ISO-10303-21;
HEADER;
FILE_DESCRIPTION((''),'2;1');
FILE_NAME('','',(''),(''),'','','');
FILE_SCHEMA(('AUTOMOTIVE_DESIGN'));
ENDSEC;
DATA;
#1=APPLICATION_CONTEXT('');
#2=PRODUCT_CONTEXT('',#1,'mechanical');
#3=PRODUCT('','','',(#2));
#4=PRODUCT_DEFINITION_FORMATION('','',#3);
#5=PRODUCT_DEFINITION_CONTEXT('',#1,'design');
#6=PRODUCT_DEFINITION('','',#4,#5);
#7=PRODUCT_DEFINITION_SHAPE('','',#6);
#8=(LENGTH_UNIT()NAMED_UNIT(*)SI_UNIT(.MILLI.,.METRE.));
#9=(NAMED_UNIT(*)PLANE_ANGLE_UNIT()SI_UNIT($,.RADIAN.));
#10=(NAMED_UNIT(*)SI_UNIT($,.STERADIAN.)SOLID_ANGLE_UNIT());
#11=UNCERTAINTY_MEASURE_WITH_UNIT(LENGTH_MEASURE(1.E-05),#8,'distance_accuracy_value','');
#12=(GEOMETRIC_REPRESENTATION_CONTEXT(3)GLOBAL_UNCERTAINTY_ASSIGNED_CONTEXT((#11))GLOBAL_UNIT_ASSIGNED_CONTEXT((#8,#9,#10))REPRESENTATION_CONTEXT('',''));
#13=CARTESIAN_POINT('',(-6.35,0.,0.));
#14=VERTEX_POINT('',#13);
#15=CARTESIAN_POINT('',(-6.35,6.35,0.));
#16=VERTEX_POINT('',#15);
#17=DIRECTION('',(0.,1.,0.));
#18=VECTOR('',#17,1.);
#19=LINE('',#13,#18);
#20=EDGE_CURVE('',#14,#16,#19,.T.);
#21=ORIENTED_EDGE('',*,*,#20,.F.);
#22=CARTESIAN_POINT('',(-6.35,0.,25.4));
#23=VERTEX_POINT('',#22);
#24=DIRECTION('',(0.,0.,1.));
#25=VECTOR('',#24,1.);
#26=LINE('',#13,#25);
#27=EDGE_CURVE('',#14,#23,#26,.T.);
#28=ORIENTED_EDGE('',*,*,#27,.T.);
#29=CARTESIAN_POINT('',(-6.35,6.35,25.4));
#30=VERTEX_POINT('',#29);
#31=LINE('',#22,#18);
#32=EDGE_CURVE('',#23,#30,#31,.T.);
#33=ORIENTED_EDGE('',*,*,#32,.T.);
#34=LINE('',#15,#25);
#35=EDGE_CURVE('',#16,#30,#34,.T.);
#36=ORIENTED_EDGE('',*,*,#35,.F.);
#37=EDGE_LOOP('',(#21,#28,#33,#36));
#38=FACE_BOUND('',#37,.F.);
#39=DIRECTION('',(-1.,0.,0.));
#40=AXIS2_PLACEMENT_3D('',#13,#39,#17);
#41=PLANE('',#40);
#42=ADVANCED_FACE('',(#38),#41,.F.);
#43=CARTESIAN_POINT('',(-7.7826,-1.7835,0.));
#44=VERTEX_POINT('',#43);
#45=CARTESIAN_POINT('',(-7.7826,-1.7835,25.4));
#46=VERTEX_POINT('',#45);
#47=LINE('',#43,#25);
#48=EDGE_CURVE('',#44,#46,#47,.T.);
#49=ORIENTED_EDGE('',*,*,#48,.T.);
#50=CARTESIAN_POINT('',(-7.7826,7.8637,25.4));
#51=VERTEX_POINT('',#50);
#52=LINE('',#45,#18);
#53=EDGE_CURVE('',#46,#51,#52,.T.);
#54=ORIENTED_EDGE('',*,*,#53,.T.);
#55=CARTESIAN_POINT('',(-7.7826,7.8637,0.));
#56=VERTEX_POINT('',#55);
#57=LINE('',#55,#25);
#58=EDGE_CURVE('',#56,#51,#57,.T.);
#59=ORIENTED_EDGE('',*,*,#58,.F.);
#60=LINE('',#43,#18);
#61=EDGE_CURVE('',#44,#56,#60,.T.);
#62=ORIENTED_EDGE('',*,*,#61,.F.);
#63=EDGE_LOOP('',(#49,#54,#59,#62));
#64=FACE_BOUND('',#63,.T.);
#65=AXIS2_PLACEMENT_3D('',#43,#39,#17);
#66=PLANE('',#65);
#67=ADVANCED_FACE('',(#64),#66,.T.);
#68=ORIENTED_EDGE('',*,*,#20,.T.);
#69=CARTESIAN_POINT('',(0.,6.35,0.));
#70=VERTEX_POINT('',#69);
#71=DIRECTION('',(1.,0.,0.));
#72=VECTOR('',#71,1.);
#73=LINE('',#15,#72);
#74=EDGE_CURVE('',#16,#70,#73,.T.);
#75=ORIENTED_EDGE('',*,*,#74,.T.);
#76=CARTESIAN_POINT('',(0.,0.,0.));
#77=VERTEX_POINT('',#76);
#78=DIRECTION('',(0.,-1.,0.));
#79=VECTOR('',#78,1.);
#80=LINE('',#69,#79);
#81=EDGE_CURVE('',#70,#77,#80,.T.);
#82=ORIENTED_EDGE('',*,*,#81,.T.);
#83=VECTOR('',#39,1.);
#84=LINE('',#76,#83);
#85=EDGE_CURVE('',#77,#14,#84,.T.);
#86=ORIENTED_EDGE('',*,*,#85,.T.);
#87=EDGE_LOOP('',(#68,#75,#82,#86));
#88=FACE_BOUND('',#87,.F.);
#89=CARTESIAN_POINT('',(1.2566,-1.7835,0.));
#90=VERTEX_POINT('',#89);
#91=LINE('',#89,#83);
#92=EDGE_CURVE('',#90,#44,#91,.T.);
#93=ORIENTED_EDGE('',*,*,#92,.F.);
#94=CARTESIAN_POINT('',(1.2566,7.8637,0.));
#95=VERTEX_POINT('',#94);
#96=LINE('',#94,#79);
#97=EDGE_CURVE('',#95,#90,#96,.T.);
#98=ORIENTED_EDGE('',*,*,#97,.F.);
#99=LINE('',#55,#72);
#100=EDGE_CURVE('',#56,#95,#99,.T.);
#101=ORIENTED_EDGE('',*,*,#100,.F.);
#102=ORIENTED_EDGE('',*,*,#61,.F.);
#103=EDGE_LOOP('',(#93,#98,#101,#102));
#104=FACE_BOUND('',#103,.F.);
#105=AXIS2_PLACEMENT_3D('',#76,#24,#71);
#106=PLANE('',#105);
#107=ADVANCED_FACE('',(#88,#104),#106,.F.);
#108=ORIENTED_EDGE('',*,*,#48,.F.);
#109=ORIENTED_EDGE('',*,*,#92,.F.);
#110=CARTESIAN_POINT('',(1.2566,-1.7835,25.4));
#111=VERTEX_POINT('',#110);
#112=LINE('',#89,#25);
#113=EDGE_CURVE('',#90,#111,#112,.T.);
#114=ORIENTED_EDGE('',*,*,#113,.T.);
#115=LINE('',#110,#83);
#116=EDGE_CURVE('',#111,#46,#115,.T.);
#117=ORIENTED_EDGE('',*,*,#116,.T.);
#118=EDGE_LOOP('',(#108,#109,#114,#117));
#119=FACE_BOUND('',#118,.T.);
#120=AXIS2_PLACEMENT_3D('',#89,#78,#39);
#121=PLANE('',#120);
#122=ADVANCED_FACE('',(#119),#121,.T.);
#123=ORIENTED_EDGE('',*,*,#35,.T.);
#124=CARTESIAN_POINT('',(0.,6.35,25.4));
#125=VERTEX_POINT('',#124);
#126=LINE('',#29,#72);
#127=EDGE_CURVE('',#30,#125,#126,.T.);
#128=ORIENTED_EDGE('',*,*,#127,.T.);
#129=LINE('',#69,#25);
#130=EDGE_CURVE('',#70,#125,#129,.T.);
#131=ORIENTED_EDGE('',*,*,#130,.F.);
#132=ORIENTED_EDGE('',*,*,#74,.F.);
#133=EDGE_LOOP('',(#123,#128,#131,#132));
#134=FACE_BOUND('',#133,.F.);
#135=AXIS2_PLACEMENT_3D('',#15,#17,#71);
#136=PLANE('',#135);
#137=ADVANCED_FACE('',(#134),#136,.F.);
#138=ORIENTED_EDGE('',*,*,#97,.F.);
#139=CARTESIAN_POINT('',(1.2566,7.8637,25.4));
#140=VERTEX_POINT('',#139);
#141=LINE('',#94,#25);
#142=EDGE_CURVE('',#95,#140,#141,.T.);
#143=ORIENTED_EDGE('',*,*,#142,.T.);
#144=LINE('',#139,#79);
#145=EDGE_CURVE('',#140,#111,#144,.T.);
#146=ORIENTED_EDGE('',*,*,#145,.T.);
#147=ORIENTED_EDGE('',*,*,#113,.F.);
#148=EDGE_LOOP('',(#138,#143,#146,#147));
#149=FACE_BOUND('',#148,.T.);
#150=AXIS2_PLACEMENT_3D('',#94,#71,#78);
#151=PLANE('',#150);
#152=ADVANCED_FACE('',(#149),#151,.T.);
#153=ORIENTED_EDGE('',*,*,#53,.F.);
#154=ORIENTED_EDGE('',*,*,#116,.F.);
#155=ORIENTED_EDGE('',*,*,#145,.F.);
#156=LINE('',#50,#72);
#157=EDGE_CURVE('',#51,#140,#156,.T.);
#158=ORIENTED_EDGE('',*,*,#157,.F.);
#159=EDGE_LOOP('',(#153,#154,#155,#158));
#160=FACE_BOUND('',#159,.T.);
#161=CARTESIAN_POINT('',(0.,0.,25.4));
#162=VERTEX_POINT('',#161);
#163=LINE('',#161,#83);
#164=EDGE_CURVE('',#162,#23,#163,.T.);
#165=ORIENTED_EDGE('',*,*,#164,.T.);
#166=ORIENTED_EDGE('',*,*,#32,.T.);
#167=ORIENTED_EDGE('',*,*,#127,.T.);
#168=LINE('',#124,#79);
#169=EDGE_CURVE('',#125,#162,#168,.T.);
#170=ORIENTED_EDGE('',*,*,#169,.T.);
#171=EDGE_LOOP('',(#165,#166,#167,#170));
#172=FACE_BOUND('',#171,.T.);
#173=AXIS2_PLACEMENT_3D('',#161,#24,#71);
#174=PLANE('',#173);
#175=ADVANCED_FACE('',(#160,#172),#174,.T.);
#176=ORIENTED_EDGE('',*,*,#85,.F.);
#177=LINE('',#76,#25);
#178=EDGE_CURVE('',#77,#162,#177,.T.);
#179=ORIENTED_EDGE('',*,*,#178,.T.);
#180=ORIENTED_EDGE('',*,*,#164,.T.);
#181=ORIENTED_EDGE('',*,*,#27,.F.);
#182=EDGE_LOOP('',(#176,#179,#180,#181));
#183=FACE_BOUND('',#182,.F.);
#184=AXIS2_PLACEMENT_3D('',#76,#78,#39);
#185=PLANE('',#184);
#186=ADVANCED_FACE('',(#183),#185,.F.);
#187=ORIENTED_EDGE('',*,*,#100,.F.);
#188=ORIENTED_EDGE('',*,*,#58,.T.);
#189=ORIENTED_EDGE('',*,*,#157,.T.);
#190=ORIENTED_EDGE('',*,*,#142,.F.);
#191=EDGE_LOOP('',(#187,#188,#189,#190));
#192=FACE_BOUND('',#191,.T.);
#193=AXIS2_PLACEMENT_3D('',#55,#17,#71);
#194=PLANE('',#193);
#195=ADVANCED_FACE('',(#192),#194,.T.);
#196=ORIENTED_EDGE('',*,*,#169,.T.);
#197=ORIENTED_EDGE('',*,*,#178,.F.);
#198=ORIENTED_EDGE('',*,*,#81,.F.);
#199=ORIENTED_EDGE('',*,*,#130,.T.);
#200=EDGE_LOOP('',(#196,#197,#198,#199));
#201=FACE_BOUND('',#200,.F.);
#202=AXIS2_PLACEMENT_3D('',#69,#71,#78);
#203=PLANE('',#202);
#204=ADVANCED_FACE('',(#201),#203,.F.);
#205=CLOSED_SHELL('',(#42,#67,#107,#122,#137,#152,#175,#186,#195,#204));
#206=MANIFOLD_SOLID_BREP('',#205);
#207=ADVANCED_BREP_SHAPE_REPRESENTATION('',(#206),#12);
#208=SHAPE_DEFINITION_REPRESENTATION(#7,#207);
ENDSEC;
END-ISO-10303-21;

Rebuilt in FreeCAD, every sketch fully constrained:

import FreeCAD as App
import Part
import Sketcher
Q = App.Units.Quantity


def add_polygon(sketch, points):
    """Adds a closed chain of lines whose ends are joined by coincident constraints."""
    first, n = sketch.GeometryCount, len(points)
    for a, b in zip(points, points[1:] + points[:1]):
        sketch.addGeometry(Part.LineSegment(App.Vector(*a, 0), App.Vector(*b, 0)), False)
    for i in range(n):
        sketch.addConstraint(Sketcher.Constraint("Coincident", first + i, 2, first + (i + 1) % n, 1))

doc = App.newDocument("Part")
params = doc.addObject("Spreadsheet::Sheet", "Params")
for row, (alias, value) in enumerate([
    ("sketch1_width", "0.25 in"),
    ("pad1_length", "1 in"),
], start=1):
    params.set(f"A{row}", alias)
    params.set(f"B{row}", "=" + value)
    params.setAlias(f"B{row}", alias)

body = doc.addObject("PartDesign::Body", "Body")

sketch1 = doc.addObject("Sketcher::SketchObject", "Sketch")
body.addObject(sketch1)
sketch1.AttachmentSupport = (doc.XY_Plane, [""])
sketch1.MapMode = "FlatFace"
add_polygon(sketch1, [(1.2566, 7.8637), (-7.7826, 7.8637), (-7.7826, -1.7835), (1.2566, -1.7835)])
add_polygon(sketch1, [(0, 6.35), (0, 0), (-6.35, 0), (-6.35, 6.35)])
sketch1.addConstraint([
    Sketcher.Constraint("Horizontal", 0),
    Sketcher.Constraint("Vertical", 1),
    Sketcher.Constraint("Horizontal", 2),
    Sketcher.Constraint("Vertical", 3),
    Sketcher.Constraint("Vertical", 4),
    Sketcher.Constraint("Horizontal", 5),
    Sketcher.Constraint("Vertical", 6),
    Sketcher.Constraint("Horizontal", 7),
    Sketcher.Constraint("Coincident", 4, 2, -1, 1),
    Sketcher.Constraint("Equal", 7, 4),
    Sketcher.Constraint("DistanceX", 5, 2, 5, 1, Q("0.25 in")),
    Sketcher.Constraint("DistanceY", 1, 2, 1, 1, Q("0.3798 in")),
    Sketcher.Constraint("DistanceX", 0, 2, 0, 1, 9.0392),
    Sketcher.Constraint("DistanceX", 0, 2, -1, 1, Q("0.3064 in")),
    Sketcher.Constraint("DistanceY", -1, 1, 0, 2, Q("0.3096 in")),
])
sketch1.setExpression("Constraints[18]", "Params.sketch1_width")
pad1 = doc.addObject("PartDesign::Pad", "Pad")
body.addObject(pad1)
pad1.Profile = sketch1
pad1.setExpression("Length", "Params.pad1_length")

doc.recompute()
